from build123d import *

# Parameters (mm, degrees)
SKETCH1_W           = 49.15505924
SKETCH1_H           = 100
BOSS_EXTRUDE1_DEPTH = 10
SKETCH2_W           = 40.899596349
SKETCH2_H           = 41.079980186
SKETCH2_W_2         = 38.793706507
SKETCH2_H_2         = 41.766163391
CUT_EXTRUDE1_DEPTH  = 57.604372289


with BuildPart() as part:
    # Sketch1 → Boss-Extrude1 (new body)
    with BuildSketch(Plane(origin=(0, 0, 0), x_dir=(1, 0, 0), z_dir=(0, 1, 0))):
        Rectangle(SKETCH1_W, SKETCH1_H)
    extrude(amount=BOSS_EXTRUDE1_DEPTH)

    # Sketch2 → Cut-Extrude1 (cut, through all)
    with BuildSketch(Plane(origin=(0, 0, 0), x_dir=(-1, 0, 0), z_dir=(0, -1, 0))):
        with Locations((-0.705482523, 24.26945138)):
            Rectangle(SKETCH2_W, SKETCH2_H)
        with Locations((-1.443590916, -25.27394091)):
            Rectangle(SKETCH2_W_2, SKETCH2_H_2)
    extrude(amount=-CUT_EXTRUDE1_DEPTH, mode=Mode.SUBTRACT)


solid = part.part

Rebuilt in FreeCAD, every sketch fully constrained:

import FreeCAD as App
import Part
import Sketcher
from FreeCAD import Vector
Q = App.Units.Quantity

doc = App.newDocument("Part")
body = doc.addObject("PartDesign::Body", "Body")

sketch1 = body.newObject("Sketcher::SketchObject", "Sketch")
sketch1.AttachmentSupport = (doc.getObject("XZ_Plane"), [""])
sketch1.MapMode = "FlatFace"
sketch1.addGeometry(Part.LineSegment(Vector(-25, -50, 0), Vector(-25, 50, 0)), False)
sketch1.addGeometry(Part.LineSegment(Vector(-25, 50, 0), Vector(25, 50, 0)), False)
sketch1.addGeometry(Part.LineSegment(Vector(25, 50, 0), Vector(25, -50, 0)), False)
sketch1.addGeometry(Part.LineSegment(Vector(25, -50, 0), Vector(-25, -50, 0)), False)
sketch1.addConstraint(Sketcher.Constraint("Coincident", 0, 2, 1, 1))
sketch1.addConstraint(Sketcher.Constraint("Coincident", 1, 2, 2, 1))
sketch1.addConstraint(Sketcher.Constraint("Coincident", 2, 2, 3, 1))
sketch1.addConstraint(Sketcher.Constraint("Coincident", 3, 2, 0, 1))
sketch1.addConstraint(Sketcher.Constraint("Vertical", 0))
sketch1.addConstraint(Sketcher.Constraint("Horizontal", 1))
sketch1.addConstraint(Sketcher.Constraint("Vertical", 2))
sketch1.addConstraint(Sketcher.Constraint("Horizontal", 3))
sketch1.addConstraint(Sketcher.Constraint("Symmetric", 0, 2, 2, 2, -1, 1))
sketch1.addConstraint(Sketcher.Constraint("DistanceY", 0, 1, 0, 2, Q("100 mm")))
sketch1.addConstraint(Sketcher.Constraint("DistanceX", 1, 1, 1, 2, Q("49.155059 mm")))
pad1 = body.newObject("PartDesign::Pad", "Pad")
pad1.Profile = sketch1
pad1.Length = 10
pad1.Reversed = True

sketch2 = body.newObject("Sketcher::SketchObject", "Sketch001")
sketch2.AttachmentSupport = (doc.getObject("XZ_Plane"), [""])
sketch2.MapMode = "FlatFace"
sketch2.addGeometry(Part.LineSegment(Vector(21, -45, 0), Vector(21, -4, 0)), False)
sketch2.addGeometry(Part.LineSegment(Vector(21, -4, 0), Vector(-20, -4, 0)), False)
sketch2.addGeometry(Part.LineSegment(Vector(-20, -4, 0), Vector(-20, -45, 0)), False)
sketch2.addGeometry(Part.LineSegment(Vector(-20, -45, 0), Vector(21, -45, 0)), False)
sketch2.addGeometry(Part.LineSegment(Vector(21, 4, 0), Vector(21, 46, 0)), False)
sketch2.addGeometry(Part.LineSegment(Vector(21, 46, 0), Vector(-18, 46, 0)), False)
sketch2.addGeometry(Part.LineSegment(Vector(-18, 46, 0), Vector(-18, 4, 0)), False)
sketch2.addGeometry(Part.LineSegment(Vector(-18, 4, 0), Vector(21, 4, 0)), False)
sketch2.addConstraint(Sketcher.Constraint("Coincident", 0, 2, 1, 1))
sketch2.addConstraint(Sketcher.Constraint("Coincident", 1, 2, 2, 1))
sketch2.addConstraint(Sketcher.Constraint("Coincident", 2, 2, 3, 1))
sketch2.addConstraint(Sketcher.Constraint("Coincident", 3, 2, 0, 1))
sketch2.addConstraint(Sketcher.Constraint("Coincident", 4, 2, 5, 1))
sketch2.addConstraint(Sketcher.Constraint("Coincident", 5, 2, 6, 1))
sketch2.addConstraint(Sketcher.Constraint("Coincident", 6, 2, 7, 1))
sketch2.addConstraint(Sketcher.Constraint("Coincident", 7, 2, 4, 1))
sketch2.addConstraint(Sketcher.Constraint("Vertical", 0))
sketch2.addConstraint(Sketcher.Constraint("Horizontal", 1))
sketch2.addConstraint(Sketcher.Constraint("Vertical", 2))
sketch2.addConstraint(Sketcher.Constraint("Horizontal", 3))
sketch2.addConstraint(Sketcher.Constraint("Vertical", 4))
sketch2.addConstraint(Sketcher.Constraint("Horizontal", 5))
sketch2.addConstraint(Sketcher.Constraint("Vertical", 6))
sketch2.addConstraint(Sketcher.Constraint("Horizontal", 7))
sketch2.addConstraint(Sketcher.Constraint("DistanceY", 0, 1, 0, 2, Q("41.07998 mm")))
sketch2.addConstraint(Sketcher.Constraint("DistanceY", 2, 2, 6, 2, Q("49.200301 mm")))
sketch2.addConstraint(Sketcher.Constraint("DistanceX", 1, 2, 1, 1, Q("40.899596 mm")))
sketch2.addConstraint(Sketcher.Constraint("DistanceX", 5, 2, 5, 1, Q("38.793707 mm")))
sketch2.addConstraint(Sketcher.Constraint("DistanceY", 4, 1, 4, 2, Q("41.766163 mm")))
sketch2.addConstraint(Sketcher.Constraint("DistanceX", -1, 1, 0, 2, Q("21.155281 mm")))
sketch2.addConstraint(Sketcher.Constraint("DistanceY", 0, 2, -1, 1, Q("3.729461 mm")))
sketch2.addConstraint(Sketcher.Constraint("DistanceX", 1, 2, 4, 2, Q("40.58476 mm")))
pocket1 = body.newObject("PartDesign::Pocket", "Pocket")
pocket1.Profile = sketch2
pocket1.Type = "ThroughAll"

doc.recompute()
